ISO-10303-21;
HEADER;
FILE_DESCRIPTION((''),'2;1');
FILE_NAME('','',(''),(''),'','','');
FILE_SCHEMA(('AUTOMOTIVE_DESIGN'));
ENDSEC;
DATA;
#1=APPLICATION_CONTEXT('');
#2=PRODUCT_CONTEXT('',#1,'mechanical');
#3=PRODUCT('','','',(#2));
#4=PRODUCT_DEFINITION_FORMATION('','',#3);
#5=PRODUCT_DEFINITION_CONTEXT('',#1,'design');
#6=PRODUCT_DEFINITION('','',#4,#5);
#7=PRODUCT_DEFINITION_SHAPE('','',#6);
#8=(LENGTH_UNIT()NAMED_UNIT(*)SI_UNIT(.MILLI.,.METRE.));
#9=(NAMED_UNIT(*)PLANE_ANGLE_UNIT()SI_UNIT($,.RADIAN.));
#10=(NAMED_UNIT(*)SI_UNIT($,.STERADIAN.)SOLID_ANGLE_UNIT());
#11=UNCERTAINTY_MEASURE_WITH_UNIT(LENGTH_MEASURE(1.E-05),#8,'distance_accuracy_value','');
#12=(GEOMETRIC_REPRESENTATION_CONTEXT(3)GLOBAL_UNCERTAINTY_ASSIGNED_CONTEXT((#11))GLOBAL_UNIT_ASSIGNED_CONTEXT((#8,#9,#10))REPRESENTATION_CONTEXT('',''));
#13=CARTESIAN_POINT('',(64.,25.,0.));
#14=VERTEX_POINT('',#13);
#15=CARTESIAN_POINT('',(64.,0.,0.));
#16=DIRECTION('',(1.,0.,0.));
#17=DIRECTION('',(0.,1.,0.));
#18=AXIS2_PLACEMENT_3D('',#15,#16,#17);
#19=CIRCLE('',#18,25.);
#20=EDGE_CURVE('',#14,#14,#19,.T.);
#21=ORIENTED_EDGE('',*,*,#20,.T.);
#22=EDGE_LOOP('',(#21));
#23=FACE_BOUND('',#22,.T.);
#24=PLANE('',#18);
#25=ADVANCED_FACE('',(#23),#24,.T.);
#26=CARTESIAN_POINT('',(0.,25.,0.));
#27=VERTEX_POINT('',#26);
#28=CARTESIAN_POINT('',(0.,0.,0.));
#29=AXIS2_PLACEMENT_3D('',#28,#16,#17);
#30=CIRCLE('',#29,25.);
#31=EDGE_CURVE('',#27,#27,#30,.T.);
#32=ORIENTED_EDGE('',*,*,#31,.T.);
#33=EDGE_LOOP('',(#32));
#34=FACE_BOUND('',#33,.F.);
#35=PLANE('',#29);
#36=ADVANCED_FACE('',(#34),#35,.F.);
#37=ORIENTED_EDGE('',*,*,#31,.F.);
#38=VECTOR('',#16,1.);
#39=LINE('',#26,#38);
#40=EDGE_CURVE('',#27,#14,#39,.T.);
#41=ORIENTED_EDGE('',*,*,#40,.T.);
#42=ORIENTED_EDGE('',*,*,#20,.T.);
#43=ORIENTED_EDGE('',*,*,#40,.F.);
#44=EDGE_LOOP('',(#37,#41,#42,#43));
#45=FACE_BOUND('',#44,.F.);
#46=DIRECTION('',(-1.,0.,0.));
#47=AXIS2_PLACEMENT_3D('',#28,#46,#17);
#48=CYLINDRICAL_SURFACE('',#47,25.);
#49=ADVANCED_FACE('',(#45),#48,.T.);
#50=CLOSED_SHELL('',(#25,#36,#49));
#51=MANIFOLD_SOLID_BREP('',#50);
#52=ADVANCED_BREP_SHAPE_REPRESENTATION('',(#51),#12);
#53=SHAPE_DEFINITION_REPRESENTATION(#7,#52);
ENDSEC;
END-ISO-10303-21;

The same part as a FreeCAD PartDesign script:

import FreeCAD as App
import Part
import Sketcher
from FreeCAD import Vector

doc = App.newDocument("Part")
body = doc.addObject("PartDesign::Body", "Body")

# Sketch on YZ plane
sketch1 = body.newObject("Sketcher::SketchObject", "Sketch")
sketch1.AttachmentSupport = (doc.getObject("YZ_Plane"), [""])
sketch1.MapMode = "FlatFace"
sketch1.addGeometry(Part.Circle(Vector(0, 0, 0), Vector(0, 0, 1), 25), False)
sketch1.addConstraint(Sketcher.Constraint("Coincident", 0, 3, -1, 1))
sketch1.addConstraint(Sketcher.Constraint("Diameter", 0, 50.0))
pad1 = body.newObject("PartDesign::Pad", "Pad")
pad1.Profile = sketch1
pad1.Length = 64

doc.recompute()
